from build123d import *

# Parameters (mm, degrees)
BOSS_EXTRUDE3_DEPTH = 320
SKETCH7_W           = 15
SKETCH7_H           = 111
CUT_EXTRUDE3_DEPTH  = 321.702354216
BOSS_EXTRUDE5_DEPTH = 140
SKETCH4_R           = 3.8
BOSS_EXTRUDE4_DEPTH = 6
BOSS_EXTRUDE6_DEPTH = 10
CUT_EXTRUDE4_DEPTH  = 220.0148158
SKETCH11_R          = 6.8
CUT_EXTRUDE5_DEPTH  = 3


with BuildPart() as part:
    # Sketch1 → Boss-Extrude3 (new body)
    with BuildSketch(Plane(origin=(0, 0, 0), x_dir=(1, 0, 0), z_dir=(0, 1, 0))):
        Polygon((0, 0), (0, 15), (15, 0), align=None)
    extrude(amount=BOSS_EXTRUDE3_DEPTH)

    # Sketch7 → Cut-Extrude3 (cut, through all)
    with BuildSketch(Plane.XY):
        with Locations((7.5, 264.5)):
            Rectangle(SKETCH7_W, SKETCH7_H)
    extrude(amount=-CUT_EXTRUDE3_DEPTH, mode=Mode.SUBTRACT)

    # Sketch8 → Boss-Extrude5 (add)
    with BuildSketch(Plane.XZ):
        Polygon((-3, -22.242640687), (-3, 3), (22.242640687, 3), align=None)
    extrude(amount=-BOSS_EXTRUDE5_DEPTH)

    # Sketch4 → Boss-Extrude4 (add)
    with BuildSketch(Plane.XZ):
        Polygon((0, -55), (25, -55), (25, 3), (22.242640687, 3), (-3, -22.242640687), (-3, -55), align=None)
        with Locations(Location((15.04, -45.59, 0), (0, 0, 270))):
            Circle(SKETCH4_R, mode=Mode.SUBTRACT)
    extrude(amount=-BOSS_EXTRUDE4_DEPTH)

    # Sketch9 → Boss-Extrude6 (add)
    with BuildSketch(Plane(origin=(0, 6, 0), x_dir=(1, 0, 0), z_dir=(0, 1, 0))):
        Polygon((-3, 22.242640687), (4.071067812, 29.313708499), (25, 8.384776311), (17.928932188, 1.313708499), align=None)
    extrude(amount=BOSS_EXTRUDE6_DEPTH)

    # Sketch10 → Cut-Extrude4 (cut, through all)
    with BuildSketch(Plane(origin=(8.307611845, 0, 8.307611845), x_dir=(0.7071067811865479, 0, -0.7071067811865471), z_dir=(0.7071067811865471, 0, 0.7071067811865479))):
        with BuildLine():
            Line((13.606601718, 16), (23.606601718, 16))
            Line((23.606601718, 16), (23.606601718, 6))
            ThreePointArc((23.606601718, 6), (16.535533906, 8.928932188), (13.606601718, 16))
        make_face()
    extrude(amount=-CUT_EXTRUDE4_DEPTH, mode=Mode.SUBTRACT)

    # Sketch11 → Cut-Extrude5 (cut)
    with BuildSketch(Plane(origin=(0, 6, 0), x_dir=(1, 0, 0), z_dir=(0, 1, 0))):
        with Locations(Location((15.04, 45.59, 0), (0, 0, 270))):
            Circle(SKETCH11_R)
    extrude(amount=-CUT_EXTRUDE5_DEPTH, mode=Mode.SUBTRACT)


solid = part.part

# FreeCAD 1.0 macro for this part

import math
import FreeCAD as App
import Part
import Sketcher
from FreeCAD import Vector
Q = App.Units.Quantity

doc = App.newDocument("Part")
body = doc.addObject("PartDesign::Body", "Body")

sketch1 = doc.addObject("Sketcher::SketchObject", "Sketch")
body.addObject(sketch1)
sketch1.AttachmentSupport = (doc.XZ_Plane, [""])
sketch1.MapMode = "FlatFace"
sketch1.addGeometry([
    Part.LineSegment(Vector(0, -15, 0), Vector(0, 0, 0)),
    Part.LineSegment(Vector(0, 0, 0), Vector(15, 0, 0)),
    Part.LineSegment(Vector(15, 0, 0), Vector(0, -15, 0)),
], False)
sketch1.addConstraint([
    Sketcher.Constraint("Coincident", 0, 2, 1, 1),
    Sketcher.Constraint("Coincident", 1, 2, 2, 1),
    Sketcher.Constraint("Coincident", 2, 2, 0, 1),
    Sketcher.Constraint("Vertical", 0),
    Sketcher.Constraint("Horizontal", 1),
    Sketcher.Constraint("Coincident", 0, 2, -1, 1),
    Sketcher.Constraint("Equal", 1, 0),
    Sketcher.Constraint("DistanceX", 1, 1, 1, 2, 15.0),
])
pad1 = doc.addObject("PartDesign::Pad", "Pad")
body.addObject(pad1)
pad1.Profile = sketch1
pad1.Length = 320
pad1.Reversed = True

sketch2 = doc.addObject("Sketcher::SketchObject", "Sketch001")
body.addObject(sketch2)
sketch2.AttachmentSupport = (doc.XY_Plane, [""])
sketch2.MapMode = "FlatFace"
sketch2.addGeometry([
    Part.LineSegment(Vector(0, 320, 0), Vector(0, 209, 0)),
    Part.LineSegment(Vector(0, 209, 0), Vector(15, 209, 0)),
    Part.LineSegment(Vector(15, 209, 0), Vector(15, 320, 0)),
    Part.LineSegment(Vector(15, 320, 0), Vector(0, 320, 0)),
], False)
sketch2.addConstraint([
    Sketcher.Constraint("Coincident", 0, 2, 1, 1),
    Sketcher.Constraint("Coincident", 1, 2, 2, 1),
    Sketcher.Constraint("Coincident", 2, 2, 3, 1),
    Sketcher.Constraint("Coincident", 3, 2, 0, 1),
    Sketcher.Constraint("Vertical", 0),
    Sketcher.Constraint("Horizontal", 1),
    Sketcher.Constraint("Vertical", 2),
    Sketcher.Constraint("Horizontal", 3),
    Sketcher.Constraint("PointOnObject", 0, 2, -2),
    Sketcher.Constraint("DistanceX", 1, 1, 1, 2, 15.0),
    Sketcher.Constraint("DistanceY", 0, 2, 0, 1, 111.0),
    Sketcher.Constraint("DistanceY", -1, 1, 0, 2, 209.0),
])
pocket1 = doc.addObject("PartDesign::Pocket", "Pocket")
body.addObject(pocket1)
pocket1.Profile = sketch2
pocket1.Type = "ThroughAll"

sketch3 = doc.addObject("Sketcher::SketchObject", "Sketch002")
body.addObject(sketch3)
sketch3.AttachmentSupport = (doc.XZ_Plane, [""])
sketch3.MapMode = "FlatFace"
sketch3.addGeometry([
    Part.LineSegment(Vector(-3, 3, 0), Vector(-3, -22.242641, 0)),
    Part.LineSegment(Vector(-3, -22.242641, 0), Vector(22.242641, 3, 0)),
    Part.LineSegment(Vector(22.242641, 3, 0), Vector(-3, 3, 0)),
], False)
sketch3.addConstraint([
    Sketcher.Constraint("Coincident", 0, 2, 1, 1),
    Sketcher.Constraint("Coincident", 1, 2, 2, 1),
    Sketcher.Constraint("Coincident", 2, 2, 0, 1),
    Sketcher.Constraint("Vertical", 0),
    Sketcher.Constraint("Horizontal", 2),
    Sketcher.Constraint("Equal", 2, 0),
    Sketcher.Constraint("DistanceX", 0, 2, -1, 1, 3.0),
    Sketcher.Constraint("DistanceY", -1, 1, 1, 2, 3.0),
    Sketcher.Constraint("DistanceX", 2, 2, 2, 1, 25.242641),
])
pad2 = doc.addObject("PartDesign::Pad", "Pad001")
body.addObject(pad2)
pad2.Profile = sketch3
pad2.Length = 140
pad2.Reversed = True

sketch4 = doc.addObject("Sketcher::SketchObject", "Sketch003")
body.addObject(sketch4)
sketch4.AttachmentSupport = (doc.XZ_Plane, [""])
sketch4.MapMode = "FlatFace"
sketch4.addGeometry([
    Part.LineSegment(Vector(25, -55, 0), Vector(25, 3, 0)),
    Part.LineSegment(Vector(25, 3, 0), Vector(22.242641, 3, 0)),
    Part.LineSegment(Vector(22.242641, 3, 0), Vector(-3, -22.242641, 0)),
    Part.LineSegment(Vector(-3, -22.242641, 0), Vector(-3, -55, 0)),
    Part.LineSegment(Vector(-3, -55, 0), Vector(25, -55, 0)),
    Part.Circle(Vector(15.04, -45.59, 0), Vector(0, 0, 1), 3.8),
], False)
sketch4.addConstraint([
    Sketcher.Constraint("Coincident", 0, 2, 1, 1),
    Sketcher.Constraint("Coincident", 1, 2, 2, 1),
    Sketcher.Constraint("Coincident", 2, 2, 3, 1),
    Sketcher.Constraint("Coincident", 3, 2, 4, 1),
    Sketcher.Constraint("Coincident", 4, 2, 0, 1),
    Sketcher.Constraint("Vertical", 0),
    Sketcher.Constraint("Horizontal", 1),
    Sketcher.Constraint("Vertical", 3),
    Sketcher.Constraint("Horizontal", 4),
    Sketcher.Constraint("Diameter", 5, 7.6),
    Sketcher.Constraint("DistanceX", 4, 1, 4, 2, 28.0),
    Sketcher.Constraint("DistanceY", 0, 1, 0, 2, 58.0),
    Sketcher.Constraint("Angle", 2, Q("-135 deg")),
    Sketcher.Constraint("DistanceX", -1, 1, 0, 2, 25.0),
    Sketcher.Constraint("DistanceY", -1, 1, 0, 2, 3.0),
    Sketcher.Constraint("DistanceX", -1, 1, 5, 3, 15.04),
    Sketcher.Constraint("DistanceY", 5, 3, -1, 1, 45.59),
    Sketcher.Constraint("DistanceX", 1, 2, 1, 1, 2.757359),
])
pad3 = doc.addObject("PartDesign::Pad", "Pad002")
body.addObject(pad3)
pad3.Profile = sketch4
pad3.Length = 6
pad3.Reversed = True

sketch5 = doc.addObject("Sketcher::SketchObject", "Sketch004")
body.addObject(sketch5)
sketch5.AttachmentSupport = (doc.XZ_Plane, [""])
sketch5.MapMode = "FlatFace"
sketch5.AttachmentOffset = App.Placement(Vector(0, 0, -6), App.Rotation())
sketch5.addGeometry([
    Part.LineSegment(Vector(4.071068, -29.313708, 0), Vector(-3, -22.242641, 0)),
    Part.LineSegment(Vector(-3, -22.242641, 0), Vector(17.928932, -1.313708, 0)),
    Part.LineSegment(Vector(17.928932, -1.313708, 0), Vector(25, -8.384776, 0)),
    Part.LineSegment(Vector(25, -8.384776, 0), Vector(4.071068, -29.313708, 0)),
], False)
sketch5.addConstraint([
    Sketcher.Constraint("Coincident", 0, 2, 1, 1),
    Sketcher.Constraint("Coincident", 1, 2, 2, 1),
    Sketcher.Constraint("Coincident", 2, 2, 3, 1),
    Sketcher.Constraint("Coincident", 3, 2, 0, 1),
    Sketcher.Constraint("Perpendicular", 0, 1),
    Sketcher.Constraint("Perpendicular", 1, 2),
    Sketcher.Constraint("Perpendicular", 2, 3),
    Sketcher.Constraint("Angle", 0, Q("135 deg")),
    Sketcher.Constraint("Distance", 0, 10.0),
    Sketcher.Constraint("DistanceX", 0, 2, -1, 1, 3.0),
    Sketcher.Constraint("DistanceX", -1, 1, 2, 2, 25.0),
    Sketcher.Constraint("DistanceY", 0, 2, -1, 1, 22.242641),
])
pad4 = doc.addObject("PartDesign::Pad", "Pad003")
body.addObject(pad4)
pad4.Profile = sketch5
pad4.Length = 10
pad4.Reversed = True

sketch6 = doc.addObject("Sketcher::SketchObject", "Sketch005")
body.addObject(sketch6)
sketch6.Placement = App.Placement(Vector(8.307612, 0, 8.307612), App.Rotation(Vector(0.707106781, 0, -0.707106781), Vector(0, 0.999999999, 0), Vector(0.707106781, 0, 0.707106781), "ZXY"))
sketch6.addGeometry([
    Part.LineSegment(Vector(23.606602, 16, 0), Vector(13.606602, 16, 0)),
    Part.ArcOfCircle(Part.Circle(Vector(23.606602, 16, 0), Vector(0, 0, 1), 10), math.radians(180), math.radians(270)),
    Part.LineSegment(Vector(23.606602, 6, 0), Vector(23.606602, 16, 0)),
], False)
sketch6.addConstraint([
    Sketcher.Constraint("Coincident", 0, 2, 1, 1),
    Sketcher.Constraint("Coincident", 1, 2, 2, 1),
    Sketcher.Constraint("Coincident", 2, 2, 0, 1),
    Sketcher.Constraint("Horizontal", 0),
    Sketcher.Constraint("Vertical", 2),
    Sketcher.Constraint("Coincident", 2, 2, 1, 3),
    Sketcher.Constraint("Radius", 1, 10.0),
    Sketcher.Constraint("DistanceY", -1, 1, 1, 3, 16.0),
    Sketcher.Constraint("DistanceX", -1, 1, 1, 3, 23.606602),
])
pocket2 = doc.addObject("PartDesign::Pocket", "Pocket001")
body.addObject(pocket2)
pocket2.Profile = sketch6
pocket2.Type = "ThroughAll"

sketch7 = doc.addObject("Sketcher::SketchObject", "Sketch006")
body.addObject(sketch7)
sketch7.AttachmentSupport = (doc.XZ_Plane, [""])
sketch7.MapMode = "FlatFace"
sketch7.AttachmentOffset = App.Placement(Vector(0, 0, -6), App.Rotation())
sketch7.addGeometry(Part.Circle(Vector(15.04, -45.59, 0), Vector(0, 0, 1), 6.8), False)
sketch7.addConstraint([
    Sketcher.Constraint("Diameter", 0, 13.6),
    Sketcher.Constraint("DistanceX", -1, 1, 0, 3, 15.04),
    Sketcher.Constraint("DistanceY", 0, 3, -1, 1, 45.59),
])
pocket3 = doc.addObject("PartDesign::Pocket", "Pocket002")
body.addObject(pocket3)
pocket3.Profile = sketch7
pocket3.Length = 3
pocket3.Reversed = True

doc.recompute()
